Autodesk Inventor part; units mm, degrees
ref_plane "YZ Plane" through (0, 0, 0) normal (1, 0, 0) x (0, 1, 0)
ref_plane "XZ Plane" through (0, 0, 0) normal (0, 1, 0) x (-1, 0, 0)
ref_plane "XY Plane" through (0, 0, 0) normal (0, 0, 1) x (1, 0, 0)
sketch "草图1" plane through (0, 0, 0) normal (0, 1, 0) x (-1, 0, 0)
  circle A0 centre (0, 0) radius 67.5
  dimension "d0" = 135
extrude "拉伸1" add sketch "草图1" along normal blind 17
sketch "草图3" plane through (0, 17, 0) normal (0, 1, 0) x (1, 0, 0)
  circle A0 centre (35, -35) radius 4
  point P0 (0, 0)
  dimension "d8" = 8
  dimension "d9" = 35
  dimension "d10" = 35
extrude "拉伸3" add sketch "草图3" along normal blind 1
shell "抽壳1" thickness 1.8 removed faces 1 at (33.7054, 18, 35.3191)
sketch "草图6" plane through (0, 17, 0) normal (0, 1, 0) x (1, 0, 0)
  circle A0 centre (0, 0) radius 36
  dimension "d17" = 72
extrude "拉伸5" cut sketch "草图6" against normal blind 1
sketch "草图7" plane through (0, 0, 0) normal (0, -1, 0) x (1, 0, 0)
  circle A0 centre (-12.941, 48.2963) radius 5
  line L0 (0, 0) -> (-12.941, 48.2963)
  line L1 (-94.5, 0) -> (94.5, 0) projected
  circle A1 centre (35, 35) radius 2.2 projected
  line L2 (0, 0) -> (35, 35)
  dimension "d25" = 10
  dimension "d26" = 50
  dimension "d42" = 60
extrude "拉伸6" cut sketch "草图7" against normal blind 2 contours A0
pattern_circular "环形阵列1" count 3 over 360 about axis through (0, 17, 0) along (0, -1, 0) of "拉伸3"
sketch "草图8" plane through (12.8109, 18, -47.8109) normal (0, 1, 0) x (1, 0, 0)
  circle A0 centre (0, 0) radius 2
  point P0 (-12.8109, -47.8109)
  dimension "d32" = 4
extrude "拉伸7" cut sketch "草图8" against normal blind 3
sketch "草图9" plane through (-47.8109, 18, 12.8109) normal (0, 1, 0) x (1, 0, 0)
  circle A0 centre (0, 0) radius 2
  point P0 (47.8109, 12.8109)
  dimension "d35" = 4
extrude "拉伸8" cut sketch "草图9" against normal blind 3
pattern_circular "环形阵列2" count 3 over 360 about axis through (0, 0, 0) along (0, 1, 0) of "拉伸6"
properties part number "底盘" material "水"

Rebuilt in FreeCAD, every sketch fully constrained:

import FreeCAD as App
import Part
import Sketcher

V = App.Vector
Q = App.Units.Quantity


def faces_at(feature, points):
    """Names of the faces that lie closest to the given points."""
    faces = feature.Shape.Faces
    near = lambda p: min(range(len(faces)), key=lambda i: faces[i].distToShape(Part.Vertex(*p))[0])
    return sorted({f"Face{near(p) + 1}" for p in points})

doc = App.newDocument("Part")
body = doc.addObject("PartDesign::Body", "Body")

# Sketch on XZ plane
sketch1 = body.newObject("Sketcher::SketchObject", "Sketch")
sketch1.AttachmentSupport = (doc.getObject("XZ_Plane"), [""])
sketch1.MapMode = "FlatFace"
sketch1.addGeometry(Part.Circle(V(0, 0, 0), V(0, 0, 1), 67.5), False)
sketch1.addConstraint([
    Sketcher.Constraint("Coincident", 0, 3, -1, 1),
    Sketcher.Constraint("Diameter", 0, Q("135 mm")),
])
pad1 = body.newObject("PartDesign::Pad", "Pad")
pad1.Profile = sketch1
pad1.Length = 17
pad1.Reversed = True

# Sketch on XZ plane
sketch2 = body.newObject("Sketcher::SketchObject", "Sketch001")
sketch2.AttachmentSupport = (doc.getObject("XZ_Plane"), [""])
sketch2.MapMode = "FlatFace"
sketch2.AttachmentOffset = App.Placement(V(0, 0, -17), App.Rotation())
sketch2.addGeometry(Part.Circle(V(35, 35, 0), V(0, 0, 1), 4), False)
sketch2.addConstraint([
    Sketcher.Constraint("Diameter", 0, Q("8 mm")),
    Sketcher.Constraint("DistanceX", -1, 1, 0, 3, Q("35 mm")),
    Sketcher.Constraint("DistanceY", -1, 1, 0, 3, Q("35 mm")),
])
pad2 = body.newObject("PartDesign::Pad", "Pad001")
pad2.Profile = sketch2
pad2.Length = 1
pad2.Reversed = True
doc.recompute()

thickness = body.newObject("PartDesign::Thickness", "Thickness")
thickness.Base = (pad2, faces_at(pad2, [(33.705, 18, 35.319)]))
thickness.Value = 1.8
thickness.Reversed = True
thickness.Join = "Intersection"

# Sketch on XZ plane
sketch3 = body.newObject("Sketcher::SketchObject", "Sketch002")
sketch3.AttachmentSupport = (doc.getObject("XZ_Plane"), [""])
sketch3.MapMode = "FlatFace"
sketch3.AttachmentOffset = App.Placement(V(0, 0, -17), App.Rotation())
sketch3.addGeometry(Part.Circle(V(0, 0, 0), V(0, 0, 1), 36), False)
sketch3.addConstraint([
    Sketcher.Constraint("Coincident", 0, 3, -1, 1),
    Sketcher.Constraint("Diameter", 0, Q("72 mm")),
])
pocket1 = body.newObject("PartDesign::Pocket", "Pocket")
pocket1.Profile = sketch3
pocket1.Length = 1
pocket1.Reversed = True

# Sketch on XZ plane
sketch4 = body.newObject("Sketcher::SketchObject", "Sketch003")
sketch4.AttachmentSupport = (doc.getObject("XZ_Plane"), [""])
sketch4.MapMode = "FlatFace"
sketch4.addGeometry(Part.Circle(V(-12.941, 48.2963, 0), V(0, 0, 1), 5), False)
sketch4.addConstraint([
    Sketcher.Constraint("Diameter", 0, Q("10 mm")),
    Sketcher.Constraint("DistanceX", 0, 3, -1, 1, Q("12.941 mm")),
    Sketcher.Constraint("DistanceY", -1, 1, 0, 3, Q("48.2963 mm")),
])
pocket2 = body.newObject("PartDesign::Pocket", "Pocket001")
pocket2.Profile = sketch4
pocket2.Length = 2
doc.recompute()

polarpattern = body.newObject("PartDesign::PolarPattern", "PolarPattern")
polarpattern.Originals = [pad2]
polarpattern.Axis = (doc.getObject("Y_Axis"), [""])
polarpattern.Angle = 360
polarpattern.Occurrences = 3
body.Tip = polarpattern

# Sketch on XZ plane
sketch5 = body.newObject("Sketcher::SketchObject", "Sketch004")
sketch5.AttachmentSupport = (doc.getObject("XZ_Plane"), [""])
sketch5.MapMode = "FlatFace"
sketch5.AttachmentOffset = App.Placement(V(0, 0, -18), App.Rotation())
sketch5.addGeometry(Part.Circle(V(12.8109, -47.8109, 0), V(0, 0, 1), 2), False)
sketch5.addConstraint([
    Sketcher.Constraint("Diameter", 0, Q("4 mm")),
    Sketcher.Constraint("DistanceX", -1, 1, 0, 3, Q("12.811 mm")),
    Sketcher.Constraint("DistanceY", 0, 3, -1, 1, Q("47.811 mm")),
])
pocket3 = body.newObject("PartDesign::Pocket", "Pocket002")
pocket3.Profile = sketch5
pocket3.Length = 3
pocket3.Reversed = True

# Sketch on XZ plane
sketch6 = body.newObject("Sketcher::SketchObject", "Sketch005")
sketch6.AttachmentSupport = (doc.getObject("XZ_Plane"), [""])
sketch6.MapMode = "FlatFace"
sketch6.AttachmentOffset = App.Placement(V(0, 0, -18), App.Rotation())
sketch6.addGeometry(Part.Circle(V(-47.8109, 12.8109, 0), V(0, 0, 1), 2), False)
sketch6.addConstraint([
    Sketcher.Constraint("Diameter", 0, Q("4 mm")),
    Sketcher.Constraint("DistanceX", 0, 3, -1, 1, Q("47.811 mm")),
    Sketcher.Constraint("DistanceY", -1, 1, 0, 3, Q("12.811 mm")),
])
pocket4 = body.newObject("PartDesign::Pocket", "Pocket003")
pocket4.Profile = sketch6
pocket4.Length = 3
pocket4.Reversed = True
doc.recompute()

polarpattern2 = body.newObject("PartDesign::PolarPattern", "PolarPattern001")
polarpattern2.Originals = [pocket2]
polarpattern2.Axis = (doc.getObject("Y_Axis"), [""])
polarpattern2.Angle = 360
polarpattern2.Occurrences = 3
body.Tip = polarpattern2

doc.recompute()
